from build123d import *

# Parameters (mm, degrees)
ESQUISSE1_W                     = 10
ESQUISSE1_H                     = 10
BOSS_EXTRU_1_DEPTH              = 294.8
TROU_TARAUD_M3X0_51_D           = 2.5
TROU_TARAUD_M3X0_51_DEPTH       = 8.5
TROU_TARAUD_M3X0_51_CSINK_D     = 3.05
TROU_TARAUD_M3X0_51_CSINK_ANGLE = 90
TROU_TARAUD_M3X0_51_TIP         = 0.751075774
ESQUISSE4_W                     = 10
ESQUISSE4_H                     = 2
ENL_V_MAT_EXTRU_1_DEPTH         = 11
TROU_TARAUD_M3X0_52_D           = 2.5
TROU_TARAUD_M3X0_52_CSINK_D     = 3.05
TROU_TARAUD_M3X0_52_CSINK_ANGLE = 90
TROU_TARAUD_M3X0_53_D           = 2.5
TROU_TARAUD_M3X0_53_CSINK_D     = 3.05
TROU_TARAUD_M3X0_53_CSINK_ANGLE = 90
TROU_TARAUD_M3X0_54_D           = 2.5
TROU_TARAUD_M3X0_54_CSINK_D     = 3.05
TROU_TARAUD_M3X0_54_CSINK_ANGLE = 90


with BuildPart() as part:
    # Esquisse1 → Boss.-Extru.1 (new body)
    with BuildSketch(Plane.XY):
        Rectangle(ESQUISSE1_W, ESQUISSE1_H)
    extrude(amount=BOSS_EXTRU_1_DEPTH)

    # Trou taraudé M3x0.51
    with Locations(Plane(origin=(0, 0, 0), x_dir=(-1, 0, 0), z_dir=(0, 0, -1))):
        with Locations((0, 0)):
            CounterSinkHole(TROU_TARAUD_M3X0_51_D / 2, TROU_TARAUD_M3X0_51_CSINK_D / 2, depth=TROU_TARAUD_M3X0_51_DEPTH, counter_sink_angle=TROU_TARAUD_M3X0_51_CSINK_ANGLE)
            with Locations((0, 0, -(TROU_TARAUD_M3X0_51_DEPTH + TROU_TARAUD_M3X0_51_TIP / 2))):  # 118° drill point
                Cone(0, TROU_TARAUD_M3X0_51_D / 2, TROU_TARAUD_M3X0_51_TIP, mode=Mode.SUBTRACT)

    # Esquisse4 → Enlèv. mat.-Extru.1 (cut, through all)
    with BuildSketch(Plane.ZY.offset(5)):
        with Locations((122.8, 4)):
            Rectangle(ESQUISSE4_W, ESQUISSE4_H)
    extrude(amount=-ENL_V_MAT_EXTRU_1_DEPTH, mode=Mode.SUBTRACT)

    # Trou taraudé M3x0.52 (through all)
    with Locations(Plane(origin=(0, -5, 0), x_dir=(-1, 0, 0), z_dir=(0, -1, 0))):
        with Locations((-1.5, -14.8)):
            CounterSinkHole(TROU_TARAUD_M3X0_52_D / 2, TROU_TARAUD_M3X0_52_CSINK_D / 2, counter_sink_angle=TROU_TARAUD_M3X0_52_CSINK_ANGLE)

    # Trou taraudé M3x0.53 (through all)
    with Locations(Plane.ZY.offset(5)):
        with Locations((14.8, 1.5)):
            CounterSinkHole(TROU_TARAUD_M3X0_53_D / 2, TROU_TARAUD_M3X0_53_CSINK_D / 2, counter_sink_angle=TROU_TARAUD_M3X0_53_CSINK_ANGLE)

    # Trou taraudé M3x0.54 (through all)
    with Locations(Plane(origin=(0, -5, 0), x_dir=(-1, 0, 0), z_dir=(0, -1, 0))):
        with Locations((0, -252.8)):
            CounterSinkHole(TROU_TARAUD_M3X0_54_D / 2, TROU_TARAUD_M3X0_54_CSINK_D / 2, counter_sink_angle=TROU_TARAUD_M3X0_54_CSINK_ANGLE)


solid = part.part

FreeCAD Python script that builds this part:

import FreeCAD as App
import Part
import Sketcher

doc = App.newDocument("Part")
body = doc.addObject("PartDesign::Body", "Body")

# Sketch on XY plane
sketch1 = body.newObject("Sketcher::SketchObject", "Sketch")
sketch1.AttachmentSupport = (doc.getObject("XY_Plane"), [""])
sketch1.MapMode = "FlatFace"
sketch1.addGeometry([
    Part.LineSegment(App.Vector(-5, 5, 0), App.Vector(-5, -5, 0)),
    Part.LineSegment(App.Vector(-5, -5, 0), App.Vector(5, -5, 0)),
    Part.LineSegment(App.Vector(5, -5, 0), App.Vector(5, 5, 0)),
    Part.LineSegment(App.Vector(5, 5, 0), App.Vector(-5, 5, 0)),
], False)
sketch1.addConstraint([
    Sketcher.Constraint("Coincident", 0, 2, 1, 1),
    Sketcher.Constraint("Coincident", 1, 2, 2, 1),
    Sketcher.Constraint("Coincident", 2, 2, 3, 1),
    Sketcher.Constraint("Coincident", 3, 2, 0, 1),
    Sketcher.Constraint("Vertical", 0),
    Sketcher.Constraint("Horizontal", 1),
    Sketcher.Constraint("Vertical", 2),
    Sketcher.Constraint("Horizontal", 3),
    Sketcher.Constraint("Symmetric", 0, 2, 2, 2, -1, 1),
    Sketcher.Constraint("Equal", 3, 0),
    Sketcher.Constraint("DistanceX", 1, 1, 1, 2, 10.0),
])
pad1 = body.newObject("PartDesign::Pad", "Pad")
pad1.Profile = sketch1
pad1.Length = 294.8

# Sketch on XY plane
sketch2 = body.newObject("Sketcher::SketchObject", "Sketch001")
sketch2.AttachmentSupport = (doc.getObject("XY_Plane"), [""])
sketch2.MapMode = "FlatFace"
sketch2.addGeometry(Part.Circle(App.Vector(0, 0, 0), App.Vector(0, 0, 1), 1.2), False)
sketch2.addConstraint([
    Sketcher.Constraint("Coincident", 0, 3, -1, 1),
    Sketcher.Constraint("Diameter", 0, 2.5),
])
doc.recompute()
hole = body.newObject("PartDesign::Hole", "Hole")
hole.Profile = sketch2
hole.ThreadType = "None"
hole.Diameter = 2.5
hole.DepthType = "Dimension"
hole.Depth = 8.5
hole.DrillPoint = "Angled"
hole.DrillPointAngle = 118
hole.HoleCutType = "Countersink"
hole.HoleCutDiameter = 3.05
hole.HoleCutCountersinkAngle = 90
hole.Reversed = True

# Sketch on YZ plane
sketch3 = body.newObject("Sketcher::SketchObject", "Sketch002")
sketch3.AttachmentSupport = (doc.getObject("YZ_Plane"), [""])
sketch3.MapMode = "FlatFace"
sketch3.AttachmentOffset = App.Placement(App.Vector(0, 0, -5), App.Rotation())
sketch3.addGeometry([
    Part.LineSegment(App.Vector(5, 117.8, 0), App.Vector(3, 117.8, 0)),
    Part.LineSegment(App.Vector(3, 117.8, 0), App.Vector(3, 127.8, 0)),
    Part.LineSegment(App.Vector(3, 127.8, 0), App.Vector(5, 127.8, 0)),
    Part.LineSegment(App.Vector(5, 127.8, 0), App.Vector(5, 117.8, 0)),
], False)
sketch3.addConstraint([
    Sketcher.Constraint("Coincident", 0, 2, 1, 1),
    Sketcher.Constraint("Coincident", 1, 2, 2, 1),
    Sketcher.Constraint("Coincident", 2, 2, 3, 1),
    Sketcher.Constraint("Coincident", 3, 2, 0, 1),
    Sketcher.Constraint("Horizontal", 0),
    Sketcher.Constraint("Vertical", 1),
    Sketcher.Constraint("Horizontal", 2),
    Sketcher.Constraint("Vertical", 3),
    Sketcher.Constraint("DistanceX", 0, 2, 0, 1, 2.0),
    Sketcher.Constraint("DistanceY", 1, 1, 1, 2, 10.0),
    Sketcher.Constraint("DistanceX", -1, 1, 0, 2, 3.0),
    Sketcher.Constraint("DistanceY", -1, 1, 0, 2, 117.8),
])
pocket1 = body.newObject("PartDesign::Pocket", "Pocket")
pocket1.Profile = sketch3
pocket1.Type = "ThroughAll"
pocket1.Reversed = True

# Sketch on XZ plane
sketch4 = body.newObject("Sketcher::SketchObject", "Sketch003")
sketch4.AttachmentSupport = (doc.getObject("XZ_Plane"), [""])
sketch4.MapMode = "FlatFace"
sketch4.AttachmentOffset = App.Placement(App.Vector(0, 0, 5), App.Rotation())
sketch4.addGeometry(Part.Circle(App.Vector(1.5, 14.8, 0), App.Vector(0, 0, 1), 1.2), False)
sketch4.addConstraint([
    Sketcher.Constraint("Diameter", 0, 2.5),
    Sketcher.Constraint("DistanceX", -1, 1, 0, 3, 1.5),
    Sketcher.Constraint("DistanceY", -1, 1, 0, 3, 14.8),
])
doc.recompute()
hole2 = body.newObject("PartDesign::Hole", "Hole001")
hole2.Profile = sketch4
hole2.ThreadType = "None"
hole2.Diameter = 2.5
hole2.DepthType = "ThroughAll"
hole2.HoleCutType = "Countersink"
hole2.HoleCutDiameter = 3.05
hole2.HoleCutCountersinkAngle = 90

# Sketch on YZ plane
sketch5 = body.newObject("Sketcher::SketchObject", "Sketch004")
sketch5.AttachmentSupport = (doc.getObject("YZ_Plane"), [""])
sketch5.MapMode = "FlatFace"
sketch5.AttachmentOffset = App.Placement(App.Vector(0, 0, -5), App.Rotation())
sketch5.addGeometry(Part.Circle(App.Vector(1.5, 14.8, 0), App.Vector(0, 0, 1), 1.2), False)
sketch5.addConstraint([
    Sketcher.Constraint("Diameter", 0, 2.5),
    Sketcher.Constraint("DistanceX", -1, 1, 0, 3, 1.5),
    Sketcher.Constraint("DistanceY", -1, 1, 0, 3, 14.8),
])
doc.recompute()
hole3 = body.newObject("PartDesign::Hole", "Hole002")
hole3.Profile = sketch5
hole3.ThreadType = "None"
hole3.Diameter = 2.5
hole3.DepthType = "ThroughAll"
hole3.HoleCutType = "Countersink"
hole3.HoleCutDiameter = 3.05
hole3.HoleCutCountersinkAngle = 90
hole3.Reversed = True

# Sketch on XZ plane
sketch6 = body.newObject("Sketcher::SketchObject", "Sketch005")
sketch6.AttachmentSupport = (doc.getObject("XZ_Plane"), [""])
sketch6.MapMode = "FlatFace"
sketch6.AttachmentOffset = App.Placement(App.Vector(0, 0, 5), App.Rotation())
sketch6.addGeometry(Part.Circle(App.Vector(0, 252.8, 0), App.Vector(0, 0, 1), 1.2), False)
sketch6.addConstraint([
    Sketcher.Constraint("PointOnObject", 0, 3, -2),
    Sketcher.Constraint("Diameter", 0, 2.5),
    Sketcher.Constraint("DistanceY", -1, 1, 0, 3, 252.8),
])
doc.recompute()
hole4 = body.newObject("PartDesign::Hole", "Hole003")
hole4.Profile = sketch6
hole4.ThreadType = "None"
hole4.Diameter = 2.5
hole4.DepthType = "ThroughAll"
hole4.HoleCutType = "Countersink"
hole4.HoleCutDiameter = 3.05
hole4.HoleCutCountersinkAngle = 90

doc.recompute()
